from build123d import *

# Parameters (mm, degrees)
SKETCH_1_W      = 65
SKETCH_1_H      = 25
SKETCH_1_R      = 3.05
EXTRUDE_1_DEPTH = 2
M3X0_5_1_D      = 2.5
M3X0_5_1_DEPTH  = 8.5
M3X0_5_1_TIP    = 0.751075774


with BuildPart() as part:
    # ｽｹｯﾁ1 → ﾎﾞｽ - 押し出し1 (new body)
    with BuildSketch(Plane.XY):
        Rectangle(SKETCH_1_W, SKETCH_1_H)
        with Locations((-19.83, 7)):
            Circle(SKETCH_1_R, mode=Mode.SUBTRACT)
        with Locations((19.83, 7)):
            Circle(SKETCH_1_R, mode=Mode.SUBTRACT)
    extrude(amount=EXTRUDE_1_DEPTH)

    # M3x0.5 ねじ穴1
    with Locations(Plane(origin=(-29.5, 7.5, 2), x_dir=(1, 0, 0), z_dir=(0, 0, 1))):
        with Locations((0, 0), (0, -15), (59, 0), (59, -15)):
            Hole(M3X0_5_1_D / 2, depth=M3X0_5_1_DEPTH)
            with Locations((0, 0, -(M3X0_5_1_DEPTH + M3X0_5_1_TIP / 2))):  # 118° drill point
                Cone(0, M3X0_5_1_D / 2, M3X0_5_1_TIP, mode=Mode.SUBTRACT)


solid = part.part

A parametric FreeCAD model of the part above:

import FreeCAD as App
import Part
import Sketcher
from FreeCAD import Vector
Q = App.Units.Quantity


def add_polygon(sketch, points):
    """Adds a closed chain of lines whose ends are joined by coincident constraints."""
    first, n = sketch.GeometryCount, len(points)
    for a, b in zip(points, points[1:] + points[:1]):
        sketch.addGeometry(Part.LineSegment(App.Vector(*a, 0), App.Vector(*b, 0)), False)
    for i in range(n):
        sketch.addConstraint(Sketcher.Constraint("Coincident", first + i, 2, first + (i + 1) % n, 1))

doc = App.newDocument("Part")
body = doc.addObject("PartDesign::Body", "Body")

sketch1 = body.newObject("Sketcher::SketchObject", "Sketch")
sketch1.AttachmentSupport = (doc.getObject("XY_Plane"), [""])
sketch1.MapMode = "FlatFace"
add_polygon(sketch1, [(-32.5, 12.5), (-32.5, -12.5), (32.5, -12.5), (32.5, 12.5)])
sketch1.addGeometry(Part.Circle(Vector(-19.8, 7, 0), Vector(0, 0, 1), 3), False)
sketch1.addGeometry(Part.Circle(Vector(19.8, 7, 0), Vector(0, 0, 1), 3), False)
sketch1.addConstraint(Sketcher.Constraint("Vertical", 0))
sketch1.addConstraint(Sketcher.Constraint("Horizontal", 1))
sketch1.addConstraint(Sketcher.Constraint("Vertical", 2))
sketch1.addConstraint(Sketcher.Constraint("Horizontal", 3))
sketch1.addConstraint(Sketcher.Constraint("Equal", 4, 5))
sketch1.addConstraint(Sketcher.Constraint("Symmetric", 0, 2, 2, 2, -1, 1))
sketch1.addConstraint(Sketcher.Constraint("Symmetric", 4, 3, 5, 3, -2))
sketch1.addConstraint(Sketcher.Constraint("Diameter", 4, Q("6.1 mm")))
sketch1.addConstraint(Sketcher.Constraint("DistanceX", 1, 1, 1, 2, Q("65 mm")))
sketch1.addConstraint(Sketcher.Constraint("DistanceY", 0, 2, 0, 1, Q("25 mm")))
sketch1.addConstraint(Sketcher.Constraint("DistanceY", -1, 1, 4, 3, Q("7 mm")))
sketch1.addConstraint(Sketcher.Constraint("DistanceX", 4, 3, -1, 1, Q("19.83 mm")))
pad1 = body.newObject("PartDesign::Pad", "Pad")
pad1.Profile = sketch1
pad1.Length = 2

sketch2 = body.newObject("Sketcher::SketchObject", "Sketch001")
sketch2.AttachmentSupport = (doc.getObject("XY_Plane"), [""])
sketch2.MapMode = "FlatFace"
sketch2.AttachmentOffset = App.Placement(Vector(0, 0, 2), App.Rotation())
sketch2.addGeometry(Part.Circle(Vector(-29.5, 7.5, 0), Vector(0, 0, 1), 1.2), False)
sketch2.addGeometry(Part.Circle(Vector(-29.5, -7.5, 0), Vector(0, 0, 1), 1.2), False)
sketch2.addGeometry(Part.Circle(Vector(29.5, 7.5, 0), Vector(0, 0, 1), 1.2), False)
sketch2.addGeometry(Part.Circle(Vector(29.5, -7.5, 0), Vector(0, 0, 1), 1.2), False)
sketch2.addConstraint(Sketcher.Constraint("Equal", 0, 1))
sketch2.addConstraint(Sketcher.Constraint("Equal", 1, 2))
sketch2.addConstraint(Sketcher.Constraint("Equal", 2, 3))
sketch2.addConstraint(Sketcher.Constraint("Symmetric", 1, 3, 2, 3, -1, 1))
sketch2.addConstraint(Sketcher.Constraint("Symmetric", 0, 3, 3, 3, -1, 1))
sketch2.addConstraint(Sketcher.Constraint("Symmetric", 0, 3, 2, 3, -2))
sketch2.addConstraint(Sketcher.Constraint("Diameter", 0, Q("2.5 mm")))
sketch2.addConstraint(Sketcher.Constraint("DistanceY", 1, 3, 0, 3, Q("15 mm")))
sketch2.addConstraint(Sketcher.Constraint("DistanceX", 0, 3, 2, 3, Q("59 mm")))
doc.recompute()
hole = body.newObject("PartDesign::Hole", "Hole")
hole.Profile = sketch2
hole.ThreadType = "None"
hole.Diameter = 2.5
hole.DepthType = "Dimension"
hole.Depth = 8.5
hole.DrillPoint = "Angled"
hole.DrillPointAngle = 118

doc.recompute()
